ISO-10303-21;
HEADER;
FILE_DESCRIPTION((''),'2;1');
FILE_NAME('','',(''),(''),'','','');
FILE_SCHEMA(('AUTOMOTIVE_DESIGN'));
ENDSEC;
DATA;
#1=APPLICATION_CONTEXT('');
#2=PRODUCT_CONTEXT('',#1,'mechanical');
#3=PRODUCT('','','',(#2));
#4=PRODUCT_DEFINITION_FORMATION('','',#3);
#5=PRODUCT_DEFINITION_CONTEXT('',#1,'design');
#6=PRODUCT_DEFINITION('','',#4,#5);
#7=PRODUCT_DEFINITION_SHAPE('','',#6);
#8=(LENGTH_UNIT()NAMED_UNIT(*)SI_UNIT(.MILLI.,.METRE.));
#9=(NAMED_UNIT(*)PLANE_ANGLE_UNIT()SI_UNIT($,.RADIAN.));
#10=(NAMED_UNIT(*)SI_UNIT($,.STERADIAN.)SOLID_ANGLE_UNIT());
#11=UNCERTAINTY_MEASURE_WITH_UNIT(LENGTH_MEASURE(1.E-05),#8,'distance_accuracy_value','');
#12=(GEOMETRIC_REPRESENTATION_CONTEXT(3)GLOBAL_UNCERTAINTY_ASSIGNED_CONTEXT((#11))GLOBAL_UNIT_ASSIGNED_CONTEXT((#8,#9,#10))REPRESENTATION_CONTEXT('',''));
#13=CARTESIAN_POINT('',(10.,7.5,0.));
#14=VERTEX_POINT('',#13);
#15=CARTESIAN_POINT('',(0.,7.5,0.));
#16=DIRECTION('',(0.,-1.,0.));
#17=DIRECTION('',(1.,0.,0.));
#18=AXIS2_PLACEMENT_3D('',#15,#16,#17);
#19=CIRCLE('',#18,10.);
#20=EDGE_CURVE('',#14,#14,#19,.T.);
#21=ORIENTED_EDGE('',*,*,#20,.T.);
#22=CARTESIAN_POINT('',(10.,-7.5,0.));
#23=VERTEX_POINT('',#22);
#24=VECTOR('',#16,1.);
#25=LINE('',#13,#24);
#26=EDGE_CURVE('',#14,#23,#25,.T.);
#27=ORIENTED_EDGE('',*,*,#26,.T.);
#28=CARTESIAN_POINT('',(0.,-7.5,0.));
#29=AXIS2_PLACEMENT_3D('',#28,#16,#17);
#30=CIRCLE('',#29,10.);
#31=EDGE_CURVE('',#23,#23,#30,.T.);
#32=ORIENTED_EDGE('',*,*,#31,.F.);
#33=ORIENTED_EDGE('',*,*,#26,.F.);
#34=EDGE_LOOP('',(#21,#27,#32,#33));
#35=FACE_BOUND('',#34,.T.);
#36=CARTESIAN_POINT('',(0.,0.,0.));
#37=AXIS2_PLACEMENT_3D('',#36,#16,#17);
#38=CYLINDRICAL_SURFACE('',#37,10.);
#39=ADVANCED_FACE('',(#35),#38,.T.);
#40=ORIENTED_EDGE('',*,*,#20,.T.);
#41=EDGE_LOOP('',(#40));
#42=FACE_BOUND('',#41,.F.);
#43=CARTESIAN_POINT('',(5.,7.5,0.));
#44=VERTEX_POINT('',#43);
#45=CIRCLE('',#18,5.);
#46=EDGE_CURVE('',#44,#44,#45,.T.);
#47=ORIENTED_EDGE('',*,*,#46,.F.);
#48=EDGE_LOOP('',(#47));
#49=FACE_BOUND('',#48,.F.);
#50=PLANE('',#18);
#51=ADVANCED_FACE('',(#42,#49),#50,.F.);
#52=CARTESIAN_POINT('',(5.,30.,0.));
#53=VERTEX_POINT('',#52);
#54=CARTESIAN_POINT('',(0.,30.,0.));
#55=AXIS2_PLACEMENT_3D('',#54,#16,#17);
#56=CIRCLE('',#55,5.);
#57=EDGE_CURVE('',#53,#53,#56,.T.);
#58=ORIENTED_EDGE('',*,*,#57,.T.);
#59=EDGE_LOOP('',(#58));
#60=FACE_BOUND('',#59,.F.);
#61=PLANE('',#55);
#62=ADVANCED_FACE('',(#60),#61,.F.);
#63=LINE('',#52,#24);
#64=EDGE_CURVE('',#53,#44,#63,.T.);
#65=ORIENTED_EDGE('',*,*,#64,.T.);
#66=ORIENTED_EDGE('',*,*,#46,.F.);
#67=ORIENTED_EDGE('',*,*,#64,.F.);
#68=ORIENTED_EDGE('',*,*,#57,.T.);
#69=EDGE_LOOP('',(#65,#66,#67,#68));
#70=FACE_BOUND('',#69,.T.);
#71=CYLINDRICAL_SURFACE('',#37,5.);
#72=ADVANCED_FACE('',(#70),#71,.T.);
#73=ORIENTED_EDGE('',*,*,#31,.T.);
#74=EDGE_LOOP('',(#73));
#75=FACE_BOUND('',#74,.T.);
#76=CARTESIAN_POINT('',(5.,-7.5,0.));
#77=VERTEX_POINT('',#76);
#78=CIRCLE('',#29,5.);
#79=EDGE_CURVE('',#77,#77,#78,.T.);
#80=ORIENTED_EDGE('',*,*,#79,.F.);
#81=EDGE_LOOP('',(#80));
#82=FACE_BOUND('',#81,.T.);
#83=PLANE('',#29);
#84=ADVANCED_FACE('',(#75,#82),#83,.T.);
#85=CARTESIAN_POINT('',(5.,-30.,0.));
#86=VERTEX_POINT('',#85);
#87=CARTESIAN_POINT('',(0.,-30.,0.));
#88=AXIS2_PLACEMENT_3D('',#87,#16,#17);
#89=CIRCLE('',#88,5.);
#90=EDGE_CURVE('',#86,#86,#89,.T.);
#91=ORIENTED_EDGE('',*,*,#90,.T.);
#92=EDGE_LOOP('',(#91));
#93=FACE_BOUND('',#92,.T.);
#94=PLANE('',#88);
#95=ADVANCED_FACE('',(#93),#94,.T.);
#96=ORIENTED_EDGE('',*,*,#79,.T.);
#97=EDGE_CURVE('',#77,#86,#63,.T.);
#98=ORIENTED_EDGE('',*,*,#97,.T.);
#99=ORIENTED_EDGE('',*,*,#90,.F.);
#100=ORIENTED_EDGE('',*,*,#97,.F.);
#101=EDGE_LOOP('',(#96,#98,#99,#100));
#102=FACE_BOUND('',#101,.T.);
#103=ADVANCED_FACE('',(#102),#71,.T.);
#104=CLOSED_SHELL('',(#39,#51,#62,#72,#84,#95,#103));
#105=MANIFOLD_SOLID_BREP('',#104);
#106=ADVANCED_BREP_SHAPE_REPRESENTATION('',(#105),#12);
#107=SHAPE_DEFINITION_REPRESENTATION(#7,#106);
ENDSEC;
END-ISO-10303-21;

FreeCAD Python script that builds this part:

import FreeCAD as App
import Part
import Sketcher

V = App.Vector
Q = App.Units.Quantity

doc = App.newDocument("Part")
body = doc.addObject("PartDesign::Body", "Body")

# Sketch on XZ plane
sketch1 = doc.addObject("Sketcher::SketchObject", "Sketch")
body.addObject(sketch1)
sketch1.AttachmentSupport = (doc.XZ_Plane, [""])
sketch1.MapMode = "FlatFace"
sketch1.addGeometry(Part.Circle(V(0, 0, 0), V(0, 0, 1), 5), False)
sketch1.addConstraint([
    Sketcher.Constraint("Coincident", 0, 3, -1, 1),
    Sketcher.Constraint("Diameter", 0, Q("10 mm")),
])
pad1 = doc.addObject("PartDesign::Pad", "Pad")
body.addObject(pad1)
pad1.Profile = sketch1
pad1.Length = 60
pad1.Midplane = True

# Sketch on XZ plane
sketch2 = doc.addObject("Sketcher::SketchObject", "Sketch001")
body.addObject(sketch2)
sketch2.AttachmentSupport = (doc.XZ_Plane, [""])
sketch2.MapMode = "FlatFace"
sketch2.addGeometry(Part.Circle(V(0, 0, 0), V(0, 0, 1), 10), False)
sketch2.addConstraint([
    Sketcher.Constraint("Coincident", 0, 3, -1, 1),
    Sketcher.Constraint("Diameter", 0, Q("20 mm")),
])
pad2 = doc.addObject("PartDesign::Pad", "Pad001")
body.addObject(pad2)
pad2.Profile = sketch2
pad2.Length = 15
pad2.Midplane = True

doc.recompute()
